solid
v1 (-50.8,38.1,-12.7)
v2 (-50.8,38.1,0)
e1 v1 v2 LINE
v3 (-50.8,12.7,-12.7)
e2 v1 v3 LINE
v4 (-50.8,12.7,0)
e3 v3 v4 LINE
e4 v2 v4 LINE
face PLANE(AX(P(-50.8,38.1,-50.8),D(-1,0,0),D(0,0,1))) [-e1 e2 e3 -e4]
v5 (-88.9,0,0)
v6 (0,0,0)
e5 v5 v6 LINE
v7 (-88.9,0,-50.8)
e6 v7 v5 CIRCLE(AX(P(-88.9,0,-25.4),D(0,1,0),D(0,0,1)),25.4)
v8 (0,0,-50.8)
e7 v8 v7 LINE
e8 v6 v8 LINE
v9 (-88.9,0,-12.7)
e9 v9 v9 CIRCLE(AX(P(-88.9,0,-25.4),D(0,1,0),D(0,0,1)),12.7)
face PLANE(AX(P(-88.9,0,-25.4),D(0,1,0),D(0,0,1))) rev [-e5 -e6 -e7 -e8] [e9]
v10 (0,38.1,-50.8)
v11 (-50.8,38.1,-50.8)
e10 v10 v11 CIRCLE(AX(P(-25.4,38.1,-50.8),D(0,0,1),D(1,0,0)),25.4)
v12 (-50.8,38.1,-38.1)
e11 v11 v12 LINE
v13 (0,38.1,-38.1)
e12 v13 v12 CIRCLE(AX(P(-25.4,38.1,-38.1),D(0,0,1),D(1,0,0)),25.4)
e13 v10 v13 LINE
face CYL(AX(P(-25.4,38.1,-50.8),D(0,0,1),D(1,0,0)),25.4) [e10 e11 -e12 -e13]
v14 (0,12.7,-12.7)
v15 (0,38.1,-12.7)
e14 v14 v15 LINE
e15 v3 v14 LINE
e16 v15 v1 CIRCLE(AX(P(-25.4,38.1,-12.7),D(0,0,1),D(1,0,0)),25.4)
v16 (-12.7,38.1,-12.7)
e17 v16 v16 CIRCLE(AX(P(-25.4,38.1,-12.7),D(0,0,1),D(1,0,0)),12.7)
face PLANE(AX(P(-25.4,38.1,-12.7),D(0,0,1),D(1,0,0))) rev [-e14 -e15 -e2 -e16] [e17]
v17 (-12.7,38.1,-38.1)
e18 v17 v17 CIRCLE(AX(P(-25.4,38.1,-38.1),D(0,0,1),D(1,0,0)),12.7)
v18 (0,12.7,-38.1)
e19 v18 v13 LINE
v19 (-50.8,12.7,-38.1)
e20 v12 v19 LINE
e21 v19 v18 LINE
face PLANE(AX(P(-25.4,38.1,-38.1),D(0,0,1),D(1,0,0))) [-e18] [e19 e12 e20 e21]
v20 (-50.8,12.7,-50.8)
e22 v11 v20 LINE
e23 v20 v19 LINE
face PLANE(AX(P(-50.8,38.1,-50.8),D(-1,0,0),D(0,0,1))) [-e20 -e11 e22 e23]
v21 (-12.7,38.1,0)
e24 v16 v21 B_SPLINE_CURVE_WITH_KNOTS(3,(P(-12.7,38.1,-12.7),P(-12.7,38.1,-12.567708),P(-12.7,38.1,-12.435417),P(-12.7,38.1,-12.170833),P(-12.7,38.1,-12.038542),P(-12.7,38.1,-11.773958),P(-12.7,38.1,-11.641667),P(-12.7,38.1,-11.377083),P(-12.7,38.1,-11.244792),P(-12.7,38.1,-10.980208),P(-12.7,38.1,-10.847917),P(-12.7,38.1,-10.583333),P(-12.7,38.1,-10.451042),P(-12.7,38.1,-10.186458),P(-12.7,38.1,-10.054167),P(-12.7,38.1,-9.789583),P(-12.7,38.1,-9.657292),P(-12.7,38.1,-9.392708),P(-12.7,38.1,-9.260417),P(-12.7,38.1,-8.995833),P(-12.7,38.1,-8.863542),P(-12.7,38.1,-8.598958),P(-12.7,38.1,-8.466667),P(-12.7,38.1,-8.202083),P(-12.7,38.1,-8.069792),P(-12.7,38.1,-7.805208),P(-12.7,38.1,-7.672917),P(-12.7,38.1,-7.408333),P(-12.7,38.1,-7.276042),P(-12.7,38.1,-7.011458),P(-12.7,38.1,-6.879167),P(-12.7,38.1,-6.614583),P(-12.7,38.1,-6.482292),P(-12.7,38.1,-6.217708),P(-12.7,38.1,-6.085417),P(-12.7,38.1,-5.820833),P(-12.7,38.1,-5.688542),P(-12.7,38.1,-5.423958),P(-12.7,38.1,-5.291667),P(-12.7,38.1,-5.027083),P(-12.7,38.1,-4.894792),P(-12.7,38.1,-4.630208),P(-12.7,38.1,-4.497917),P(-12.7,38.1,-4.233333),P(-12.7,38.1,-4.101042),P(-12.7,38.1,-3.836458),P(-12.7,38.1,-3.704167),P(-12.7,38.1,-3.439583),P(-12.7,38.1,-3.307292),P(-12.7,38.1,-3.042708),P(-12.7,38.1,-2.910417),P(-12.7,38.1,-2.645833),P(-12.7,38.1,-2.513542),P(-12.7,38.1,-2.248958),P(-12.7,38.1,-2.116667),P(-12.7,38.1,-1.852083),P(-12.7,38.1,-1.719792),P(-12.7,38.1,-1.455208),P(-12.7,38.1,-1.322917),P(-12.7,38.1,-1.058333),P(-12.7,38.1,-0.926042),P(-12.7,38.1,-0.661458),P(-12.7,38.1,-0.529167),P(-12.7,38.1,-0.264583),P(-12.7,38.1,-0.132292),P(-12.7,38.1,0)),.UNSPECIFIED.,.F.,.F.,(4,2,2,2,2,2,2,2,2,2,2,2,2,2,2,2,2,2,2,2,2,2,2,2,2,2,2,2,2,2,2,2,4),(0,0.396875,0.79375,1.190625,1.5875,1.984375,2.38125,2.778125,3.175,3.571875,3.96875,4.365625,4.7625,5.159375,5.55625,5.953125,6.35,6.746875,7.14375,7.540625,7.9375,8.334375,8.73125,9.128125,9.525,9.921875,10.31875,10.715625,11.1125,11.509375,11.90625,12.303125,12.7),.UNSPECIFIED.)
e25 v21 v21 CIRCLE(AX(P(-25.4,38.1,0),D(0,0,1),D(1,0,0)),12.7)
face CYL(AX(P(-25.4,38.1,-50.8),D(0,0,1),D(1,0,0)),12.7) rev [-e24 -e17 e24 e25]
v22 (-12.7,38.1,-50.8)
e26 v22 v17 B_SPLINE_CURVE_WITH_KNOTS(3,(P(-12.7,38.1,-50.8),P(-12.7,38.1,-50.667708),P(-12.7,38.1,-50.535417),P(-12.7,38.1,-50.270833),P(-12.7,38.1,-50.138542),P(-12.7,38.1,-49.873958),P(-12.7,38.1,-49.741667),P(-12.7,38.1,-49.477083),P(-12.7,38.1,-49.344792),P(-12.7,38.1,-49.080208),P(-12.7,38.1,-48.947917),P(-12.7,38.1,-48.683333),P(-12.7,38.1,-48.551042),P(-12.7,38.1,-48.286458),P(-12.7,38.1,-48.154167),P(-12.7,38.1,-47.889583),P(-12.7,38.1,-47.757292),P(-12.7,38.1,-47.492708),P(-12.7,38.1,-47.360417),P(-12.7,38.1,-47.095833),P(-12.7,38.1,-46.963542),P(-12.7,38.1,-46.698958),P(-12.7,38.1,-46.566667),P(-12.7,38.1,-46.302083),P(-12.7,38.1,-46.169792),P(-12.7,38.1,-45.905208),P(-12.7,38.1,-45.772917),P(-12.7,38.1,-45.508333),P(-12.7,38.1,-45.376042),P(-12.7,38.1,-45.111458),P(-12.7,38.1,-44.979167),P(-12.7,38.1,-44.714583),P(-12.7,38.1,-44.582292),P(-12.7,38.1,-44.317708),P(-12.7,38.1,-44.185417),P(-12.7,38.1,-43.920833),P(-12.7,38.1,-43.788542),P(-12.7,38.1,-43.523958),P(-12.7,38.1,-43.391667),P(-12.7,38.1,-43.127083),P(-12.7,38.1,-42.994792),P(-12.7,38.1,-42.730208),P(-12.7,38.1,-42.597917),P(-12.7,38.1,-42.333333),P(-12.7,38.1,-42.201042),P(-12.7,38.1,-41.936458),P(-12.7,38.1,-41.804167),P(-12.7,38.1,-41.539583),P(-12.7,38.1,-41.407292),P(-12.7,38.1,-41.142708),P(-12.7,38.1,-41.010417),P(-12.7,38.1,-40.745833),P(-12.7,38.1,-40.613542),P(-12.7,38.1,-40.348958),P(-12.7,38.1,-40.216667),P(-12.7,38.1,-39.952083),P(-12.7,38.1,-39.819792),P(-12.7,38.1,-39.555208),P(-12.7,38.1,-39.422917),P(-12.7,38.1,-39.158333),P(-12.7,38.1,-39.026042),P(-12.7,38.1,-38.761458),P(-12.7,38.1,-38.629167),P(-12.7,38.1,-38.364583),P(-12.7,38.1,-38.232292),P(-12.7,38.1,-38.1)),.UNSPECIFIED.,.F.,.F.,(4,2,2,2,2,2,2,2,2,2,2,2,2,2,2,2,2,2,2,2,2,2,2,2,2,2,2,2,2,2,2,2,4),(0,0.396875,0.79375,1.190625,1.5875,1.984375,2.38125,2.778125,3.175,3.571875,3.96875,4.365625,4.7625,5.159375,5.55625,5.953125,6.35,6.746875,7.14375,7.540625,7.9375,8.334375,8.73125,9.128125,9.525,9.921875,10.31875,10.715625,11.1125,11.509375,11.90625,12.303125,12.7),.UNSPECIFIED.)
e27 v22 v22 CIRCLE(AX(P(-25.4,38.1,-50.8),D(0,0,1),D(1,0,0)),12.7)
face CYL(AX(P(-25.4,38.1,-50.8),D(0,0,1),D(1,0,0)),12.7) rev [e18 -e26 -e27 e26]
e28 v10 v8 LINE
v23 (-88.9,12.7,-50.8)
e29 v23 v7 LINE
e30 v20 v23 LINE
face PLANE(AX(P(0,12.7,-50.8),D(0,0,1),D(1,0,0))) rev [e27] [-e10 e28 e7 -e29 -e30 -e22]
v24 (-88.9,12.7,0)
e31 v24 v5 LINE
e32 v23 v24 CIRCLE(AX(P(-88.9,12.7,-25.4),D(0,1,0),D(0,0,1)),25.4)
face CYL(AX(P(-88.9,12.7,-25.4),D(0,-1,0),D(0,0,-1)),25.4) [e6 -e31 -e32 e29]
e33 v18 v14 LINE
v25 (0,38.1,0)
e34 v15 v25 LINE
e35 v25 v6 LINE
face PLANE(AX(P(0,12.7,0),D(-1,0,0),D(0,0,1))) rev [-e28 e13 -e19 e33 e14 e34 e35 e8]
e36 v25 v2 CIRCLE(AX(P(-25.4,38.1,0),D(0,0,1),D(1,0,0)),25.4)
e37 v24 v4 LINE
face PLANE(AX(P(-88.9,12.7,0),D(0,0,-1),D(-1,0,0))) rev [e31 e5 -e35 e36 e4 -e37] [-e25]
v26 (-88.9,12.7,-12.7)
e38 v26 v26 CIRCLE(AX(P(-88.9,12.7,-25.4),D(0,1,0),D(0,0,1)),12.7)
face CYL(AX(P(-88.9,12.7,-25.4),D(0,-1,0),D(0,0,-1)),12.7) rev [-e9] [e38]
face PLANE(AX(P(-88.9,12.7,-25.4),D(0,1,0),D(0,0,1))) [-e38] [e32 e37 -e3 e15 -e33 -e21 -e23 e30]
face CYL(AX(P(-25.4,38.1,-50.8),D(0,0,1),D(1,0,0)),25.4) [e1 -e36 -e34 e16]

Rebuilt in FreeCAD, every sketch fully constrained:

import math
import FreeCAD as App
import Part
import Sketcher

V = App.Vector
Q = App.Units.Quantity

doc = App.newDocument("Part")
params = doc.addObject("Spreadsheet::Sheet", "Params")
for row, (alias, value) in enumerate([
    ("sketch1_diameter", "1 in"),
    ("sketch1_radius", "1 in"),
    ("sketch1_width", "3.5 in"),
    ("pad1_length", "0.5 in"),
    ("sketch2_diameter", "1 in"),
    ("sketch2_radius", "1 in"),
    ("sketch2_height", "1 in"),
    ("pad2_length", "2 in"),
    ("sketch3_diameter", "1 in"),
    ("sketch3_radius", "1 in"),
    ("sketch3_height", "1 in"),
    ("pocket1_length", "1 in"),
], start=1):
    params.set(f"A{row}", alias)
    params.set(f"B{row}", "=" + value)
    params.setAlias(f"B{row}", alias)

body = doc.addObject("PartDesign::Body", "Body")

# Sketch on XZ plane
sketch1 = doc.addObject("Sketcher::SketchObject", "Sketch")
body.addObject(sketch1)
sketch1.AttachmentSupport = (doc.XZ_Plane, [""])
sketch1.MapMode = "FlatFace"
sketch1.addGeometry([
    Part.LineSegment(V(0, 0, 0), V(0, -51, 0)),  # 0
    Part.LineSegment(V(0, -51, 0), V(-89, -51, 0)),  # 1
    Part.ArcOfCircle(Part.Circle(V(-89, -25, 0), V(0, 0, 1), 25), math.radians(90), math.radians(270)),  # 2
    Part.LineSegment(V(-89, 0, 0), V(0, 0, 0)),  # 3
    Part.Circle(V(-89, -25, 0), V(0, 0, 1), 13),  # 4
], False)
sketch1.addConstraint([
    Sketcher.Constraint("Coincident", 0, 2, 1, 1),
    Sketcher.Constraint("Tangent", 1, 2, 2, 2),
    Sketcher.Constraint("Tangent", 2, 1, 3, 1),
    Sketcher.Constraint("Coincident", 3, 2, 0, 1),
    Sketcher.Constraint("Vertical", 0),
    Sketcher.Constraint("Horizontal", 1),
    Sketcher.Constraint("Horizontal", 3),
    Sketcher.Constraint("Coincident", 3, 2, -1, 1),
    Sketcher.Constraint("Coincident", 4, 3, 2, 3),
    Sketcher.Constraint("Diameter", 4, Q("1 in")),
    Sketcher.Constraint("Radius", 2, Q("1 in")),
    Sketcher.Constraint("DistanceX", 1, 2, 1, 1, Q("3.5 in")),
])
sketch1.setExpression("Constraints[9]", "Params.sketch1_diameter")
sketch1.setExpression("Constraints[10]", "Params.sketch1_radius")
sketch1.setExpression("Constraints[11]", "Params.sketch1_width")
pad1 = doc.addObject("PartDesign::Pad", "Pad")
body.addObject(pad1)
pad1.Profile = sketch1
pad1.setExpression("Length", "Params.pad1_length")
pad1.Reversed = True

# Sketch on XY plane
sketch2 = doc.addObject("Sketcher::SketchObject", "Sketch001")
body.addObject(sketch2)
sketch2.AttachmentSupport = (doc.XY_Plane, [""])
sketch2.MapMode = "FlatFace"
sketch2.addGeometry([
    Part.LineSegment(V(0, 13, 0), V(0, 38, 0)),  # 0
    Part.ArcOfCircle(Part.Circle(V(-25, 38, 0), V(0, 0, 1), 25), math.radians(0), math.radians(180)),  # 1
    Part.LineSegment(V(-51, 38, 0), V(-51, 13, 0)),  # 2
    Part.LineSegment(V(-51, 13, 0), V(0, 13, 0)),  # 3
    Part.Circle(V(-25, 38, 0), V(0, 0, 1), 13),  # 4
], False)
sketch2.addConstraint([
    Sketcher.Constraint("Tangent", 0, 2, 1, 1),
    Sketcher.Constraint("Tangent", 1, 2, 2, 1),
    Sketcher.Constraint("Coincident", 2, 2, 3, 1),
    Sketcher.Constraint("Coincident", 3, 2, 0, 1),
    Sketcher.Constraint("Vertical", 0),
    Sketcher.Constraint("Vertical", 2),
    Sketcher.Constraint("Horizontal", 3),
    Sketcher.Constraint("Coincident", 4, 3, 1, 3),
    Sketcher.Constraint("PointOnObject", 0, 2, -2),
    Sketcher.Constraint("Diameter", 4, Q("1 in")),
    Sketcher.Constraint("Radius", 1, Q("1 in")),
    Sketcher.Constraint("DistanceY", 0, 1, 0, 2, Q("1 in")),
    Sketcher.Constraint("DistanceY", -1, 1, 1, 3, Q("1.5 in")),
])
sketch2.setExpression("Constraints[9]", "Params.sketch2_diameter")
sketch2.setExpression("Constraints[10]", "Params.sketch2_radius")
sketch2.setExpression("Constraints[11]", "Params.sketch2_height")
pad2 = doc.addObject("PartDesign::Pad", "Pad001")
body.addObject(pad2)
pad2.Profile = sketch2
pad2.setExpression("Length", "Params.pad2_length")
pad2.Reversed = True

# Sketch on XY plane
sketch3 = doc.addObject("Sketcher::SketchObject", "Sketch002")
body.addObject(sketch3)
sketch3.AttachmentSupport = (doc.XY_Plane, [""])
sketch3.MapMode = "FlatFace"
sketch3.AttachmentOffset = App.Placement(V(0, 0, -0.5 * 25.4), App.Rotation())
sketch3.addGeometry([
    Part.LineSegment(V(0, 13, 0), V(0, 38, 0)),  # 0
    Part.ArcOfCircle(Part.Circle(V(-25, 38, 0), V(0, 0, 1), 25), math.radians(0), math.radians(180)),  # 1
    Part.LineSegment(V(-51, 38, 0), V(-51, 13, 0)),  # 2
    Part.LineSegment(V(-51, 13, 0), V(0, 13, 0)),  # 3
    Part.Circle(V(-25, 38, 0), V(0, 0, 1), 13),  # 4
], False)
sketch3.addConstraint([
    Sketcher.Constraint("Tangent", 0, 2, 1, 1),
    Sketcher.Constraint("Tangent", 1, 2, 2, 1),
    Sketcher.Constraint("Coincident", 2, 2, 3, 1),
    Sketcher.Constraint("Coincident", 3, 2, 0, 1),
    Sketcher.Constraint("Vertical", 0),
    Sketcher.Constraint("Vertical", 2),
    Sketcher.Constraint("Horizontal", 3),
    Sketcher.Constraint("Coincident", 4, 3, 1, 3),
    Sketcher.Constraint("PointOnObject", 0, 2, -2),
    Sketcher.Constraint("Diameter", 4, Q("1 in")),
    Sketcher.Constraint("Radius", 1, Q("1 in")),
    Sketcher.Constraint("DistanceY", 0, 1, 0, 2, Q("1 in")),
    Sketcher.Constraint("DistanceY", -1, 1, 1, 3, Q("1.5 in")),
])
sketch3.setExpression("Constraints[9]", "Params.sketch3_diameter")
sketch3.setExpression("Constraints[10]", "Params.sketch3_radius")
sketch3.setExpression("Constraints[11]", "Params.sketch3_height")
pocket1 = doc.addObject("PartDesign::Pocket", "Pocket")
body.addObject(pocket1)
pocket1.Profile = sketch3
pocket1.setExpression("Length", "Params.pocket1_length")

doc.recompute()
